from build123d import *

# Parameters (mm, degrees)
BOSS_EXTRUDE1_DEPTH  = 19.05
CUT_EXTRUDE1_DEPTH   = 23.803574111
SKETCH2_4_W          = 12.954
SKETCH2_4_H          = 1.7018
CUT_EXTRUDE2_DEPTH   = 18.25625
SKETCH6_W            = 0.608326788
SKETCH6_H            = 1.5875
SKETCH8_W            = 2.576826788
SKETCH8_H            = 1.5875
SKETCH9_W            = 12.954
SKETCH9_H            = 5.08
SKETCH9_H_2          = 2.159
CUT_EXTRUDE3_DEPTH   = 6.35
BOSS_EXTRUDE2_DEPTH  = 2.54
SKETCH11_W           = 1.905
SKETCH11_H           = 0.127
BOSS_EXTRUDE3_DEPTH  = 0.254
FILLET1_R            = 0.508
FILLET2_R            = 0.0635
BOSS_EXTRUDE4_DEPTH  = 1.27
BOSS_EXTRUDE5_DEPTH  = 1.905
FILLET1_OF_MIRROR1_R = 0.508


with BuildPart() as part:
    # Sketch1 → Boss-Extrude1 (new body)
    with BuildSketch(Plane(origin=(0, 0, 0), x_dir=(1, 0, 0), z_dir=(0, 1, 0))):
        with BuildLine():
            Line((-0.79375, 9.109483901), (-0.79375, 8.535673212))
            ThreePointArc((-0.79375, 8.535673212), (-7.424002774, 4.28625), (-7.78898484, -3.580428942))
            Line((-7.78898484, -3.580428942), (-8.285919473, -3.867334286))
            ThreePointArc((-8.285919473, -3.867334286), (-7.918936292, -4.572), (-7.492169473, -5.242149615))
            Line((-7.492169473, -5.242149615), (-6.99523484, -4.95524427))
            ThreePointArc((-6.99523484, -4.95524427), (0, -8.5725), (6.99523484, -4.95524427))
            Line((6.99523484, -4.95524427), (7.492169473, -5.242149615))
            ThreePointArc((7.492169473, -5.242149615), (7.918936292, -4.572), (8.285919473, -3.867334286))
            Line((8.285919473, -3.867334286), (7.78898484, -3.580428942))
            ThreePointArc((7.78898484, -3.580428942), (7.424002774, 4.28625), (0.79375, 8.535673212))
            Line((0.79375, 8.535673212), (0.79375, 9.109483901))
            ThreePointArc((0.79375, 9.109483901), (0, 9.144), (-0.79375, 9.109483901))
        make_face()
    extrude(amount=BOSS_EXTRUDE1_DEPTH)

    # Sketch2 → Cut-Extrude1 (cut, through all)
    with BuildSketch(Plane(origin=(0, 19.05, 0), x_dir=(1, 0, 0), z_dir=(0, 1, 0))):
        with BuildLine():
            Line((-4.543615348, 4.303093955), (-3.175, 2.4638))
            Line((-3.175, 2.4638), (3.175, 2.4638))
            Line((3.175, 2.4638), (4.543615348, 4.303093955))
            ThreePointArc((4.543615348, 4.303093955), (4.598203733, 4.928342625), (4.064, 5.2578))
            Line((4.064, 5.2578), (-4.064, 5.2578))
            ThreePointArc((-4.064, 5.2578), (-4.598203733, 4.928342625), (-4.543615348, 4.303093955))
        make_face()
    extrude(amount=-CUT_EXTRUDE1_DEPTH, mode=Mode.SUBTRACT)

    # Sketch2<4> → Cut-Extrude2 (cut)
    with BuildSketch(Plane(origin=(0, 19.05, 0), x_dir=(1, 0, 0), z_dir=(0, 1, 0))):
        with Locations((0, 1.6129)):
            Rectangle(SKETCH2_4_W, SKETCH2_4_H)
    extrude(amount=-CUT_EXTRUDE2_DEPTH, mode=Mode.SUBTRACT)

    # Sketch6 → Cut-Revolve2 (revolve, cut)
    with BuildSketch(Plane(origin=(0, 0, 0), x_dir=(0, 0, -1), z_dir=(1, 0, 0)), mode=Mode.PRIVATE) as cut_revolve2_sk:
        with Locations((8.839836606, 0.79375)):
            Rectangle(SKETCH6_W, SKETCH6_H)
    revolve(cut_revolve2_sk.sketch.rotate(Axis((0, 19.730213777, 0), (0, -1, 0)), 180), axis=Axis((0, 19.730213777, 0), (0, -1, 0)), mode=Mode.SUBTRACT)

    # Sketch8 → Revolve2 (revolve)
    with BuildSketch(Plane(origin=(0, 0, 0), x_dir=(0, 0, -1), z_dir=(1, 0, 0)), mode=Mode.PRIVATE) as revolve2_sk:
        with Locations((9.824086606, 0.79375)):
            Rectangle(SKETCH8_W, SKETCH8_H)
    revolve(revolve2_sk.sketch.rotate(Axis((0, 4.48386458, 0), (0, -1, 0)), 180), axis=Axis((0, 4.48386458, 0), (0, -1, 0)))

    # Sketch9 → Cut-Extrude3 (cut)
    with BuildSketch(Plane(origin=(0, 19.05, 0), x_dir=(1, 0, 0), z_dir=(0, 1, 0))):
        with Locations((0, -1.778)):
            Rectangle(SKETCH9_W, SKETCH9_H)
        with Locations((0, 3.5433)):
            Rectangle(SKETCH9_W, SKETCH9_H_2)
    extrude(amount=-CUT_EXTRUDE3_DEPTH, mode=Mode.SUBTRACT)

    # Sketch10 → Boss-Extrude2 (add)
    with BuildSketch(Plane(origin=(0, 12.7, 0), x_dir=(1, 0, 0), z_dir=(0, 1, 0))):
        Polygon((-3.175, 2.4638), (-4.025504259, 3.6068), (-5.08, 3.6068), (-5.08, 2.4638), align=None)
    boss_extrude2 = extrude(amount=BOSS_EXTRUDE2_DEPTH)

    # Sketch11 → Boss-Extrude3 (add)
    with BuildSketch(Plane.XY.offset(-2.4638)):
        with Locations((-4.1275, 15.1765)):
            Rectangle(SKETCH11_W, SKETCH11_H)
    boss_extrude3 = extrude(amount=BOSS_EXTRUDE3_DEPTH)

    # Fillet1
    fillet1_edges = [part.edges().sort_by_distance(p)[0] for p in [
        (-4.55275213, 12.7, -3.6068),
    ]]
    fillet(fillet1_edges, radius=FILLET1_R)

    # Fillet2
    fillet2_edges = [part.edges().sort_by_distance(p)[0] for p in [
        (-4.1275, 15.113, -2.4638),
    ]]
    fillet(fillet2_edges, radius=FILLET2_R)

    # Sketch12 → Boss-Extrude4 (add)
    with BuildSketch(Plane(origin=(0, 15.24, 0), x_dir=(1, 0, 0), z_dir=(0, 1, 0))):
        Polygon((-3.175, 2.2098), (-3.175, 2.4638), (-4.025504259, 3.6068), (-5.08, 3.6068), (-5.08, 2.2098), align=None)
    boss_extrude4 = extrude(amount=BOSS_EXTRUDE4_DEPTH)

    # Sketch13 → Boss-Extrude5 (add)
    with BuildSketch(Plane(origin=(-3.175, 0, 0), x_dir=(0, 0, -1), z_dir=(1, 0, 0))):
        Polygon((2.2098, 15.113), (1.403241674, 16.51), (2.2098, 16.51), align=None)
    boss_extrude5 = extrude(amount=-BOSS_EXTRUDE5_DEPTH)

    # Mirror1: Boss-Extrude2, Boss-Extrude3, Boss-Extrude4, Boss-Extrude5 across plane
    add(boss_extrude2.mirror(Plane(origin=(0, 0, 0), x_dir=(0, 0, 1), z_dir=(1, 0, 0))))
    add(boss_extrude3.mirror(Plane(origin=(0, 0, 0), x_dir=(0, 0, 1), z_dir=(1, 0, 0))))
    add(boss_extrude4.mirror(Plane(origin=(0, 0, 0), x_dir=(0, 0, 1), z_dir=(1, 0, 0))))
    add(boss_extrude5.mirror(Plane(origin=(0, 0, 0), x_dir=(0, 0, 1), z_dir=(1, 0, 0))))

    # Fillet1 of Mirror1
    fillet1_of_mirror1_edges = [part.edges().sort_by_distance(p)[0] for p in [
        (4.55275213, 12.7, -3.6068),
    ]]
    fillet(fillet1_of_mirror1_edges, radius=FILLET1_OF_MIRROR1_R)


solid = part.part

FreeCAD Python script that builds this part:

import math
import FreeCAD as App
import Part
import Sketcher
from FreeCAD import Vector
Q = App.Units.Quantity


def edges_at(feature, points):
    """Names of the edges that pass closest to the given points."""
    edges = feature.Shape.Edges
    near = lambda p: min(range(len(edges)), key=lambda i: edges[i].distToShape(Part.Vertex(*p))[0])
    return sorted({f"Edge{near(p) + 1}" for p in points})

doc = App.newDocument("Part")
body = doc.addObject("PartDesign::Body", "Body")

# Sketch on XZ plane
sketch1 = body.newObject("Sketcher::SketchObject", "Sketch")
sketch1.AttachmentSupport = (doc.getObject("XZ_Plane"), [""])
sketch1.MapMode = "FlatFace"
sketch1.addGeometry([
    Part.LineSegment(Vector(-0.8, -9.1, 0), Vector(-0.8, -8.5, 0)),  # 0
    Part.ArcOfCircle(Part.Circle(Vector(0, 0, 0), Vector(0, 0, 1), 8.6), math.radians(155), math.radians(265)),  # 1
    Part.LineSegment(Vector(-7.8, 3.6, 0), Vector(-8.3, 3.9, 0)),  # 2
    Part.ArcOfCircle(Part.Circle(Vector(0, 0, 0), Vector(0, 0, 1), 9.1), math.radians(145.02), math.radians(154.98)),  # 3
    Part.LineSegment(Vector(-7.5, 5.2, 0), Vector(-7, 5, 0)),  # 4
    Part.ArcOfCircle(Part.Circle(Vector(0, 0, 0), Vector(0, 0, 1), 8.6), math.radians(35), math.radians(145)),  # 5
    Part.LineSegment(Vector(7, 5, 0), Vector(7.5, 5.2, 0)),  # 6
    Part.ArcOfCircle(Part.Circle(Vector(0, 0, 0), Vector(0, 0, 1), 9.1), math.radians(25.02), math.radians(34.98)),  # 7
    Part.LineSegment(Vector(8.3, 3.9, 0), Vector(7.8, 3.6, 0)),  # 8
    Part.ArcOfCircle(Part.Circle(Vector(0, 0, 0), Vector(0, 0, 1), 8.6), math.radians(-85), math.radians(25)),  # 9
    Part.LineSegment(Vector(0.8, -8.5, 0), Vector(0.8, -9.1, 0)),  # 10
    Part.ArcOfCircle(Part.Circle(Vector(0, 0, 0), Vector(0, 0, 1), 9.1), math.radians(-94.98), math.radians(-85.02)),  # 11
], False)
sketch1.addConstraint([
    Sketcher.Constraint("Coincident", 0, 2, 1, 2),
    Sketcher.Constraint("Coincident", 1, 1, 2, 1),
    Sketcher.Constraint("Coincident", 2, 2, 3, 2),
    Sketcher.Constraint("Coincident", 3, 1, 4, 1),
    Sketcher.Constraint("Coincident", 4, 2, 5, 2),
    Sketcher.Constraint("Coincident", 5, 1, 6, 1),
    Sketcher.Constraint("Coincident", 6, 2, 7, 2),
    Sketcher.Constraint("Coincident", 7, 1, 8, 1),
    Sketcher.Constraint("Coincident", 8, 2, 9, 2),
    Sketcher.Constraint("Coincident", 9, 1, 10, 1),
    Sketcher.Constraint("Coincident", 10, 2, 11, 2),
    Sketcher.Constraint("Coincident", 11, 1, 0, 1),
    Sketcher.Constraint("Vertical", 0),
    Sketcher.Constraint("Vertical", 10),
    Sketcher.Constraint("Coincident", 1, 3, -1, 1),
    Sketcher.Constraint("Coincident", 3, 3, -1, 1),
    Sketcher.Constraint("Coincident", 5, 3, -1, 1),
    Sketcher.Constraint("Coincident", 7, 3, -1, 1),
    Sketcher.Constraint("Coincident", 9, 3, -1, 1),
    Sketcher.Constraint("Coincident", 11, 3, -1, 1),
    Sketcher.Constraint("Equal", 1, 5),
    Sketcher.Constraint("Equal", 3, 7),
    Sketcher.Constraint("Equal", 5, 9),
    Sketcher.Constraint("Equal", 7, 11),
    Sketcher.Constraint("Parallel", 2, 4),
    Sketcher.Constraint("Parallel", 6, 8),
    Sketcher.Constraint("Horizontal", 4, 2, 5, 1),
    Sketcher.Constraint("Horizontal", 3, 1, 6, 2),
    Sketcher.Constraint("Horizontal", 2, 2, 7, 1),
    Sketcher.Constraint("Horizontal", 0, 2, 9, 1),
    Sketcher.Constraint("Equal", 2, 4),
    Sketcher.Constraint("Radius", 3, Q("0.36 in")),
    Sketcher.Constraint("Angle", 2, Q("150 deg")),
    Sketcher.Constraint("Radius", 1, Q("0.3375 in")),
    Sketcher.Constraint("DistanceX", 0, 2, -1, 1, Q("0.03125 in")),
    Sketcher.Constraint("DistanceX", 2, 2, 3, 1, Q("0.03125 in")),
])
pad1 = body.newObject("PartDesign::Pad", "Pad")
pad1.Profile = sketch1
pad1.Length = Q("0.75 in")
pad1.Reversed = True

# Sketch on XZ plane
sketch2 = body.newObject("Sketcher::SketchObject", "Sketch001")
sketch2.AttachmentSupport = (doc.getObject("XZ_Plane"), [""])
sketch2.MapMode = "FlatFace"
sketch2.AttachmentOffset = App.Placement(Vector(0, 0, -0.75 * 25.4), App.Rotation())
sketch2.addGeometry([
    Part.LineSegment(Vector(-4.5, -4.3, 0), Vector(-3.2, -2.5, 0)),  # 0
    Part.LineSegment(Vector(-3.2, -2.5, 0), Vector(3.2, -2.5, 0)),  # 1
    Part.LineSegment(Vector(3.2, -2.5, 0), Vector(4.5, -4.3, 0)),  # 2
    Part.ArcOfCircle(Part.Circle(Vector(4.1, -4.7, 0), Vector(0, 0, 1), 0.6), math.radians(-90), math.radians(37)),  # 3
    Part.LineSegment(Vector(4.1, -5.3, 0), Vector(-4.1, -5.3, 0)),  # 4
    Part.ArcOfCircle(Part.Circle(Vector(-4.1, -4.7, 0), Vector(0, 0, 1), 0.6), math.radians(143), math.radians(270)),  # 5
], False)
sketch2.addConstraint([
    Sketcher.Constraint("Coincident", 0, 2, 1, 1),
    Sketcher.Constraint("Coincident", 1, 2, 2, 1),
    Sketcher.Constraint("Tangent", 2, 2, 3, 2),
    Sketcher.Constraint("Tangent", 3, 1, 4, 1),
    Sketcher.Constraint("Tangent", 4, 2, 5, 2),
    Sketcher.Constraint("Tangent", 5, 1, 0, 1),
    Sketcher.Constraint("Horizontal", 1),
    Sketcher.Constraint("Horizontal", 4),
    Sketcher.Constraint("Equal", 3, 5),
    Sketcher.Constraint("Symmetric", 2, 2, 5, 1, -2),
    Sketcher.Constraint("DistanceX", 1, 1, 1, 2, Q("0.25 in")),
    Sketcher.Constraint("DistanceX", 4, 2, 4, 1, Q("0.32 in")),
    Sketcher.Constraint("DistanceY", 3, 1, 1, 2, Q("0.11 in")),
    Sketcher.Constraint("DistanceY", 0, 2, -1, 1, Q("0.097 in")),
    Sketcher.Constraint("Radius", 3, 0.597825),
])
pocket1 = body.newObject("PartDesign::Pocket", "Pocket")
pocket1.Profile = sketch2
pocket1.Type = "ThroughAll"
pocket1.Reversed = True

# Sketch on XZ plane
sketch3 = body.newObject("Sketcher::SketchObject", "Sketch002")
sketch3.AttachmentSupport = (doc.getObject("XZ_Plane"), [""])
sketch3.MapMode = "FlatFace"
sketch3.AttachmentOffset = App.Placement(Vector(0, 0, -0.75 * 25.4), App.Rotation())
sketch3.addGeometry([
    Part.LineSegment(Vector(-6.5, -2.5, 0), Vector(-6.5, -0.8, 0)),
    Part.LineSegment(Vector(-6.5, -0.8, 0), Vector(6.5, -0.8, 0)),
    Part.LineSegment(Vector(6.5, -0.8, 0), Vector(6.5, -2.5, 0)),
    Part.LineSegment(Vector(6.5, -2.5, 0), Vector(-6.5, -2.5, 0)),
], False)
sketch3.addConstraint([
    Sketcher.Constraint("Coincident", 0, 2, 1, 1),
    Sketcher.Constraint("Coincident", 1, 2, 2, 1),
    Sketcher.Constraint("Coincident", 2, 2, 3, 1),
    Sketcher.Constraint("Coincident", 3, 2, 0, 1),
    Sketcher.Constraint("Vertical", 0),
    Sketcher.Constraint("Horizontal", 1),
    Sketcher.Constraint("Vertical", 2),
    Sketcher.Constraint("Horizontal", 3),
    Sketcher.Constraint("DistanceX", 1, 1, 1, 2, Q("0.51 in")),
    Sketcher.Constraint("DistanceY", 0, 1, 0, 2, Q("0.067 in")),
    Sketcher.Constraint("DistanceY", 0, 2, -1, 1, Q("0.03 in")),
    Sketcher.Constraint("DistanceX", 0, 2, -1, 1, Q("0.255 in")),
])
pocket2 = body.newObject("PartDesign::Pocket", "Pocket001")
pocket2.Profile = sketch3
pocket2.Length = Q("0.71875 in")
pocket2.Reversed = True

# Sketch on YZ plane
sketch4 = body.newObject("Sketcher::SketchObject", "Sketch003")
sketch4.AttachmentSupport = (doc.getObject("YZ_Plane"), [""])
sketch4.MapMode = "FlatFace"
sketch4.addGeometry([
    Part.LineSegment(Vector(1.6, -8.5, 0), Vector(0, -8.5, 0)),
    Part.LineSegment(Vector(0, -8.5, 0), Vector(0, -9.1, 0)),
    Part.LineSegment(Vector(0, -9.1, 0), Vector(1.6, -9.1, 0)),
    Part.LineSegment(Vector(1.6, -9.1, 0), Vector(1.6, -8.5, 0)),
], False)
sketch4.addConstraint([
    Sketcher.Constraint("Coincident", 0, 2, 1, 1),
    Sketcher.Constraint("Coincident", 1, 2, 2, 1),
    Sketcher.Constraint("Coincident", 2, 2, 3, 1),
    Sketcher.Constraint("Coincident", 3, 2, 0, 1),
    Sketcher.Constraint("Horizontal", 0),
    Sketcher.Constraint("Vertical", 1),
    Sketcher.Constraint("Horizontal", 2),
    Sketcher.Constraint("Vertical", 3),
    Sketcher.Constraint("PointOnObject", 0, 2, -2),
    Sketcher.Constraint("DistanceX", 0, 2, 0, 1, Q("0.0625 in")),
    Sketcher.Constraint("DistanceY", 1, 2, -1, 1, Q("0.36 in")),
    Sketcher.Constraint("DistanceY", 1, 2, 1, 1, 0.608327),
])
groove = body.newObject("PartDesign::Groove", "Groove")
groove.Profile = sketch4
groove.ReferenceAxis = (sketch4, ["H_Axis"])
groove.Angle = 360

# Sketch on YZ plane
sketch5 = body.newObject("Sketcher::SketchObject", "Sketch004")
sketch5.AttachmentSupport = (doc.getObject("YZ_Plane"), [""])
sketch5.MapMode = "FlatFace"
sketch5.addGeometry([
    Part.LineSegment(Vector(1.6, -8.5, 0), Vector(0, -8.5, 0)),
    Part.LineSegment(Vector(0, -8.5, 0), Vector(0, -11.1, 0)),
    Part.LineSegment(Vector(0, -11.1, 0), Vector(1.6, -11.1, 0)),
    Part.LineSegment(Vector(1.6, -11.1, 0), Vector(1.6, -8.5, 0)),
], False)
sketch5.addConstraint([
    Sketcher.Constraint("Coincident", 0, 2, 1, 1),
    Sketcher.Constraint("Coincident", 1, 2, 2, 1),
    Sketcher.Constraint("Coincident", 2, 2, 3, 1),
    Sketcher.Constraint("Coincident", 3, 2, 0, 1),
    Sketcher.Constraint("Horizontal", 0),
    Sketcher.Constraint("Vertical", 1),
    Sketcher.Constraint("Horizontal", 2),
    Sketcher.Constraint("Vertical", 3),
    Sketcher.Constraint("PointOnObject", 0, 2, -2),
    Sketcher.Constraint("DistanceX", 0, 2, 0, 1, Q("0.0625 in")),
    Sketcher.Constraint("DistanceY", 1, 2, -1, 1, Q("0.4375 in")),
    Sketcher.Constraint("DistanceY", 1, 2, 1, 1, 2.576827),
])
revolution = body.newObject("PartDesign::Revolution", "Revolution")
revolution.Profile = sketch5
revolution.ReferenceAxis = (sketch5, ["H_Axis"])
revolution.Angle = 360

# Sketch on XZ plane
sketch6 = body.newObject("Sketcher::SketchObject", "Sketch005")
sketch6.AttachmentSupport = (doc.getObject("XZ_Plane"), [""])
sketch6.MapMode = "FlatFace"
sketch6.AttachmentOffset = App.Placement(Vector(0, 0, -0.75 * 25.4), App.Rotation())
sketch6.addGeometry([
    Part.LineSegment(Vector(-6.5, -0.8, 0), Vector(-6.5, 4.3, 0)),  # 0
    Part.LineSegment(Vector(-6.5, 4.3, 0), Vector(6.5, 4.3, 0)),  # 1
    Part.LineSegment(Vector(6.5, 4.3, 0), Vector(6.5, -0.8, 0)),  # 2
    Part.LineSegment(Vector(6.5, -0.8, 0), Vector(-6.5, -0.8, 0)),  # 3
    Part.LineSegment(Vector(-6.5, -4.6, 0), Vector(-6.5, -2.5, 0)),  # 4
    Part.LineSegment(Vector(-6.5, -2.5, 0), Vector(6.5, -2.5, 0)),  # 5
    Part.LineSegment(Vector(6.5, -2.5, 0), Vector(6.5, -4.6, 0)),  # 6
    Part.LineSegment(Vector(6.5, -4.6, 0), Vector(-6.5, -4.6, 0)),  # 7
], False)
sketch6.addConstraint([
    Sketcher.Constraint("Coincident", 0, 2, 1, 1),
    Sketcher.Constraint("Coincident", 1, 2, 2, 1),
    Sketcher.Constraint("Coincident", 2, 2, 3, 1),
    Sketcher.Constraint("Coincident", 3, 2, 0, 1),
    Sketcher.Constraint("Coincident", 4, 2, 5, 1),
    Sketcher.Constraint("Coincident", 5, 2, 6, 1),
    Sketcher.Constraint("Coincident", 6, 2, 7, 1),
    Sketcher.Constraint("Coincident", 7, 2, 4, 1),
    Sketcher.Constraint("Vertical", 0),
    Sketcher.Constraint("Horizontal", 1),
    Sketcher.Constraint("Vertical", 2),
    Sketcher.Constraint("Horizontal", 3),
    Sketcher.Constraint("Vertical", 4),
    Sketcher.Constraint("Horizontal", 5),
    Sketcher.Constraint("Vertical", 6),
    Sketcher.Constraint("Horizontal", 7),
    Sketcher.Constraint("Vertical", 3, 2, 4, 2),
    Sketcher.Constraint("Vertical", 2, 2, 5, 2),
    Sketcher.Constraint("DistanceY", 0, 1, 0, 2, Q("0.2 in")),
    Sketcher.Constraint("DistanceX", 1, 1, 1, 2, Q("0.51 in")),
    Sketcher.Constraint("DistanceY", 4, 1, 4, 2, Q("0.085 in")),
    Sketcher.Constraint("DistanceY", -1, 1, 0, 2, Q("0.17 in")),
    Sketcher.Constraint("DistanceX", 0, 2, -1, 1, Q("0.255 in")),
    Sketcher.Constraint("DistanceY", 4, 2, -1, 1, Q("0.097 in")),
])
pocket3 = body.newObject("PartDesign::Pocket", "Pocket002")
pocket3.Profile = sketch6
pocket3.Length = Q("0.25 in")
pocket3.Reversed = True

# Sketch on XZ plane
sketch7 = body.newObject("Sketcher::SketchObject", "Sketch006")
sketch7.AttachmentSupport = (doc.getObject("XZ_Plane"), [""])
sketch7.MapMode = "FlatFace"
sketch7.AttachmentOffset = App.Placement(Vector(0, 0, -0.5 * 25.4), App.Rotation())
sketch7.addGeometry([
    Part.LineSegment(Vector(-3.2, -2.5, 0), Vector(-4, -3.6, 0)),
    Part.LineSegment(Vector(-4, -3.6, 0), Vector(-5.1, -3.6, 0)),
    Part.LineSegment(Vector(-5.1, -3.6, 0), Vector(-5.1, -2.5, 0)),
    Part.LineSegment(Vector(-5.1, -2.5, 0), Vector(-3.2, -2.5, 0)),
], False)
sketch7.addConstraint([
    Sketcher.Constraint("Coincident", 0, 2, 1, 1),
    Sketcher.Constraint("Coincident", 1, 2, 2, 1),
    Sketcher.Constraint("Coincident", 2, 2, 3, 1),
    Sketcher.Constraint("Coincident", 3, 2, 0, 1),
    Sketcher.Constraint("Horizontal", 1),
    Sketcher.Constraint("Vertical", 2),
    Sketcher.Constraint("Horizontal", 3),
    Sketcher.Constraint("DistanceX", 1, 2, -1, 1, Q("0.2 in")),
    Sketcher.Constraint("DistanceX", 3, 1, 3, 2, Q("0.075 in")),
    Sketcher.Constraint("DistanceY", 2, 1, 2, 2, Q("0.045 in")),
    Sketcher.Constraint("DistanceY", 0, 2, -1, 1, Q("0.142 in")),
    Sketcher.Constraint("DistanceX", 1, 2, 1, 1, 1.054496),
])
pad2 = body.newObject("PartDesign::Pad", "Pad001")
pad2.Profile = sketch7
pad2.Length = Q("0.1 in")
pad2.Reversed = True

# Sketch on XY plane
sketch8 = body.newObject("Sketcher::SketchObject", "Sketch007")
sketch8.AttachmentSupport = (doc.getObject("XY_Plane"), [""])
sketch8.MapMode = "FlatFace"
sketch8.AttachmentOffset = App.Placement(Vector(0, 0, -0.097 * 25.4), App.Rotation())
sketch8.addGeometry([
    Part.LineSegment(Vector(-5.08, 15.24, 0), Vector(-5.08, 15.11, 0)),
    Part.LineSegment(Vector(-5.08, 15.11, 0), Vector(-3.17, 15.11, 0)),
    Part.LineSegment(Vector(-3.17, 15.11, 0), Vector(-3.17, 15.24, 0)),
    Part.LineSegment(Vector(-3.17, 15.24, 0), Vector(-5.08, 15.24, 0)),
], False)
sketch8.addConstraint([
    Sketcher.Constraint("Coincident", 0, 2, 1, 1),
    Sketcher.Constraint("Coincident", 1, 2, 2, 1),
    Sketcher.Constraint("Coincident", 2, 2, 3, 1),
    Sketcher.Constraint("Coincident", 3, 2, 0, 1),
    Sketcher.Constraint("Vertical", 0),
    Sketcher.Constraint("Horizontal", 1),
    Sketcher.Constraint("Vertical", 2),
    Sketcher.Constraint("Horizontal", 3),
    Sketcher.Constraint("DistanceX", 0, 2, -1, 1, Q("0.2 in")),
    Sketcher.Constraint("DistanceY", -1, 1, 2, 2, Q("0.6 in")),
    Sketcher.Constraint("DistanceX", 1, 1, 1, 2, Q("0.075 in")),
    Sketcher.Constraint("DistanceY", 0, 2, 0, 1, Q("0.005 in")),
])
pad3 = body.newObject("PartDesign::Pad", "Pad002")
pad3.Profile = sketch8
pad3.Length = Q("0.01 in")
doc.recompute()

fillet = body.newObject("PartDesign::Fillet", "Fillet")
fillet.Base = (pad3, edges_at(pad3, [(-4.553, 12.7, -3.607)]))
fillet.Radius = Q("0.02 in")
doc.recompute()

fillet2 = body.newObject("PartDesign::Fillet", "Fillet001")
fillet2.Base = (fillet, edges_at(fillet, [(-4.128, 15.113, -2.464)]))
fillet2.Radius = Q("0.0025 in")

# Sketch on XZ plane
sketch9 = body.newObject("Sketcher::SketchObject", "Sketch008")
sketch9.AttachmentSupport = (doc.getObject("XZ_Plane"), [""])
sketch9.MapMode = "FlatFace"
sketch9.AttachmentOffset = App.Placement(Vector(0, 0, -0.6 * 25.4), App.Rotation())
sketch9.addGeometry([
    Part.LineSegment(Vector(-3.17, -2.21, 0), Vector(-3.17, -2.46, 0)),  # 0
    Part.LineSegment(Vector(-3.17, -2.46, 0), Vector(-4.03, -3.61, 0)),  # 1
    Part.LineSegment(Vector(-4.03, -3.61, 0), Vector(-5.08, -3.61, 0)),  # 2
    Part.LineSegment(Vector(-5.08, -3.61, 0), Vector(-5.08, -2.21, 0)),  # 3
    Part.LineSegment(Vector(-5.08, -2.21, 0), Vector(-3.17, -2.21, 0)),  # 4
], False)
sketch9.addConstraint([
    Sketcher.Constraint("Coincident", 0, 2, 1, 1),
    Sketcher.Constraint("Coincident", 1, 2, 2, 1),
    Sketcher.Constraint("Coincident", 2, 2, 3, 1),
    Sketcher.Constraint("Coincident", 3, 2, 4, 1),
    Sketcher.Constraint("Coincident", 4, 2, 0, 1),
    Sketcher.Constraint("Vertical", 0),
    Sketcher.Constraint("Horizontal", 2),
    Sketcher.Constraint("Vertical", 3),
    Sketcher.Constraint("Horizontal", 4),
    Sketcher.Constraint("DistanceY", 0, 2, 0, 1, Q("0.01 in")),
    Sketcher.Constraint("DistanceX", 2, 2, -1, 1, Q("0.2 in")),
    Sketcher.Constraint("DistanceX", 4, 1, 4, 2, Q("0.075 in")),
    Sketcher.Constraint("DistanceY", 3, 1, 3, 2, Q("0.055 in")),
    Sketcher.Constraint("DistanceY", 0, 2, -1, 1, Q("0.097 in")),
    Sketcher.Constraint("DistanceX", 2, 2, 2, 1, 1.054496),
])
pad4 = body.newObject("PartDesign::Pad", "Pad003")
pad4.Profile = sketch9
pad4.Length = Q("0.05 in")
pad4.Reversed = True

# Sketch on YZ plane
sketch10 = body.newObject("Sketcher::SketchObject", "Sketch009")
sketch10.AttachmentSupport = (doc.getObject("YZ_Plane"), [""])
sketch10.MapMode = "FlatFace"
sketch10.AttachmentOffset = App.Placement(Vector(0, 0, -0.125 * 25.4), App.Rotation())
sketch10.addGeometry([
    Part.LineSegment(Vector(16.5, -1.4, 0), Vector(15.1, -2.2, 0)),
    Part.LineSegment(Vector(15.1, -2.2, 0), Vector(16.5, -2.2, 0)),
    Part.LineSegment(Vector(16.5, -2.2, 0), Vector(16.5, -1.4, 0)),
], False)
sketch10.addConstraint([
    Sketcher.Constraint("Coincident", 0, 2, 1, 1),
    Sketcher.Constraint("Coincident", 1, 2, 2, 1),
    Sketcher.Constraint("Coincident", 2, 2, 0, 1),
    Sketcher.Constraint("Horizontal", 1),
    Sketcher.Constraint("Vertical", 2),
    Sketcher.Constraint("Angle", 0, Q("-150 deg")),
    Sketcher.Constraint("DistanceX", 1, 1, 1, 2, Q("0.055 in")),
    Sketcher.Constraint("DistanceX", -1, 1, 1, 2, Q("0.65 in")),
    Sketcher.Constraint("DistanceY", 0, 2, -1, 1, Q("0.087 in")),
])
pad5 = body.newObject("PartDesign::Pad", "Pad004")
pad5.Profile = sketch10
pad5.Length = Q("0.075 in")
pad5.Reversed = True
doc.recompute()

mirrored = body.newObject("PartDesign::Mirrored", "Mirrored")
mirrored.Originals = [pad2, pad3, pad4, pad5]
mirrored.MirrorPlane = (doc.getObject("YZ_Plane"), [""])
body.Tip = mirrored
doc.recompute()

fillet3 = body.newObject("PartDesign::Fillet", "Fillet002")
fillet3.Base = (mirrored, edges_at(mirrored, [(4.553, 12.7, -3.607)]))
fillet3.Radius = Q("0.02 in")

doc.recompute()
